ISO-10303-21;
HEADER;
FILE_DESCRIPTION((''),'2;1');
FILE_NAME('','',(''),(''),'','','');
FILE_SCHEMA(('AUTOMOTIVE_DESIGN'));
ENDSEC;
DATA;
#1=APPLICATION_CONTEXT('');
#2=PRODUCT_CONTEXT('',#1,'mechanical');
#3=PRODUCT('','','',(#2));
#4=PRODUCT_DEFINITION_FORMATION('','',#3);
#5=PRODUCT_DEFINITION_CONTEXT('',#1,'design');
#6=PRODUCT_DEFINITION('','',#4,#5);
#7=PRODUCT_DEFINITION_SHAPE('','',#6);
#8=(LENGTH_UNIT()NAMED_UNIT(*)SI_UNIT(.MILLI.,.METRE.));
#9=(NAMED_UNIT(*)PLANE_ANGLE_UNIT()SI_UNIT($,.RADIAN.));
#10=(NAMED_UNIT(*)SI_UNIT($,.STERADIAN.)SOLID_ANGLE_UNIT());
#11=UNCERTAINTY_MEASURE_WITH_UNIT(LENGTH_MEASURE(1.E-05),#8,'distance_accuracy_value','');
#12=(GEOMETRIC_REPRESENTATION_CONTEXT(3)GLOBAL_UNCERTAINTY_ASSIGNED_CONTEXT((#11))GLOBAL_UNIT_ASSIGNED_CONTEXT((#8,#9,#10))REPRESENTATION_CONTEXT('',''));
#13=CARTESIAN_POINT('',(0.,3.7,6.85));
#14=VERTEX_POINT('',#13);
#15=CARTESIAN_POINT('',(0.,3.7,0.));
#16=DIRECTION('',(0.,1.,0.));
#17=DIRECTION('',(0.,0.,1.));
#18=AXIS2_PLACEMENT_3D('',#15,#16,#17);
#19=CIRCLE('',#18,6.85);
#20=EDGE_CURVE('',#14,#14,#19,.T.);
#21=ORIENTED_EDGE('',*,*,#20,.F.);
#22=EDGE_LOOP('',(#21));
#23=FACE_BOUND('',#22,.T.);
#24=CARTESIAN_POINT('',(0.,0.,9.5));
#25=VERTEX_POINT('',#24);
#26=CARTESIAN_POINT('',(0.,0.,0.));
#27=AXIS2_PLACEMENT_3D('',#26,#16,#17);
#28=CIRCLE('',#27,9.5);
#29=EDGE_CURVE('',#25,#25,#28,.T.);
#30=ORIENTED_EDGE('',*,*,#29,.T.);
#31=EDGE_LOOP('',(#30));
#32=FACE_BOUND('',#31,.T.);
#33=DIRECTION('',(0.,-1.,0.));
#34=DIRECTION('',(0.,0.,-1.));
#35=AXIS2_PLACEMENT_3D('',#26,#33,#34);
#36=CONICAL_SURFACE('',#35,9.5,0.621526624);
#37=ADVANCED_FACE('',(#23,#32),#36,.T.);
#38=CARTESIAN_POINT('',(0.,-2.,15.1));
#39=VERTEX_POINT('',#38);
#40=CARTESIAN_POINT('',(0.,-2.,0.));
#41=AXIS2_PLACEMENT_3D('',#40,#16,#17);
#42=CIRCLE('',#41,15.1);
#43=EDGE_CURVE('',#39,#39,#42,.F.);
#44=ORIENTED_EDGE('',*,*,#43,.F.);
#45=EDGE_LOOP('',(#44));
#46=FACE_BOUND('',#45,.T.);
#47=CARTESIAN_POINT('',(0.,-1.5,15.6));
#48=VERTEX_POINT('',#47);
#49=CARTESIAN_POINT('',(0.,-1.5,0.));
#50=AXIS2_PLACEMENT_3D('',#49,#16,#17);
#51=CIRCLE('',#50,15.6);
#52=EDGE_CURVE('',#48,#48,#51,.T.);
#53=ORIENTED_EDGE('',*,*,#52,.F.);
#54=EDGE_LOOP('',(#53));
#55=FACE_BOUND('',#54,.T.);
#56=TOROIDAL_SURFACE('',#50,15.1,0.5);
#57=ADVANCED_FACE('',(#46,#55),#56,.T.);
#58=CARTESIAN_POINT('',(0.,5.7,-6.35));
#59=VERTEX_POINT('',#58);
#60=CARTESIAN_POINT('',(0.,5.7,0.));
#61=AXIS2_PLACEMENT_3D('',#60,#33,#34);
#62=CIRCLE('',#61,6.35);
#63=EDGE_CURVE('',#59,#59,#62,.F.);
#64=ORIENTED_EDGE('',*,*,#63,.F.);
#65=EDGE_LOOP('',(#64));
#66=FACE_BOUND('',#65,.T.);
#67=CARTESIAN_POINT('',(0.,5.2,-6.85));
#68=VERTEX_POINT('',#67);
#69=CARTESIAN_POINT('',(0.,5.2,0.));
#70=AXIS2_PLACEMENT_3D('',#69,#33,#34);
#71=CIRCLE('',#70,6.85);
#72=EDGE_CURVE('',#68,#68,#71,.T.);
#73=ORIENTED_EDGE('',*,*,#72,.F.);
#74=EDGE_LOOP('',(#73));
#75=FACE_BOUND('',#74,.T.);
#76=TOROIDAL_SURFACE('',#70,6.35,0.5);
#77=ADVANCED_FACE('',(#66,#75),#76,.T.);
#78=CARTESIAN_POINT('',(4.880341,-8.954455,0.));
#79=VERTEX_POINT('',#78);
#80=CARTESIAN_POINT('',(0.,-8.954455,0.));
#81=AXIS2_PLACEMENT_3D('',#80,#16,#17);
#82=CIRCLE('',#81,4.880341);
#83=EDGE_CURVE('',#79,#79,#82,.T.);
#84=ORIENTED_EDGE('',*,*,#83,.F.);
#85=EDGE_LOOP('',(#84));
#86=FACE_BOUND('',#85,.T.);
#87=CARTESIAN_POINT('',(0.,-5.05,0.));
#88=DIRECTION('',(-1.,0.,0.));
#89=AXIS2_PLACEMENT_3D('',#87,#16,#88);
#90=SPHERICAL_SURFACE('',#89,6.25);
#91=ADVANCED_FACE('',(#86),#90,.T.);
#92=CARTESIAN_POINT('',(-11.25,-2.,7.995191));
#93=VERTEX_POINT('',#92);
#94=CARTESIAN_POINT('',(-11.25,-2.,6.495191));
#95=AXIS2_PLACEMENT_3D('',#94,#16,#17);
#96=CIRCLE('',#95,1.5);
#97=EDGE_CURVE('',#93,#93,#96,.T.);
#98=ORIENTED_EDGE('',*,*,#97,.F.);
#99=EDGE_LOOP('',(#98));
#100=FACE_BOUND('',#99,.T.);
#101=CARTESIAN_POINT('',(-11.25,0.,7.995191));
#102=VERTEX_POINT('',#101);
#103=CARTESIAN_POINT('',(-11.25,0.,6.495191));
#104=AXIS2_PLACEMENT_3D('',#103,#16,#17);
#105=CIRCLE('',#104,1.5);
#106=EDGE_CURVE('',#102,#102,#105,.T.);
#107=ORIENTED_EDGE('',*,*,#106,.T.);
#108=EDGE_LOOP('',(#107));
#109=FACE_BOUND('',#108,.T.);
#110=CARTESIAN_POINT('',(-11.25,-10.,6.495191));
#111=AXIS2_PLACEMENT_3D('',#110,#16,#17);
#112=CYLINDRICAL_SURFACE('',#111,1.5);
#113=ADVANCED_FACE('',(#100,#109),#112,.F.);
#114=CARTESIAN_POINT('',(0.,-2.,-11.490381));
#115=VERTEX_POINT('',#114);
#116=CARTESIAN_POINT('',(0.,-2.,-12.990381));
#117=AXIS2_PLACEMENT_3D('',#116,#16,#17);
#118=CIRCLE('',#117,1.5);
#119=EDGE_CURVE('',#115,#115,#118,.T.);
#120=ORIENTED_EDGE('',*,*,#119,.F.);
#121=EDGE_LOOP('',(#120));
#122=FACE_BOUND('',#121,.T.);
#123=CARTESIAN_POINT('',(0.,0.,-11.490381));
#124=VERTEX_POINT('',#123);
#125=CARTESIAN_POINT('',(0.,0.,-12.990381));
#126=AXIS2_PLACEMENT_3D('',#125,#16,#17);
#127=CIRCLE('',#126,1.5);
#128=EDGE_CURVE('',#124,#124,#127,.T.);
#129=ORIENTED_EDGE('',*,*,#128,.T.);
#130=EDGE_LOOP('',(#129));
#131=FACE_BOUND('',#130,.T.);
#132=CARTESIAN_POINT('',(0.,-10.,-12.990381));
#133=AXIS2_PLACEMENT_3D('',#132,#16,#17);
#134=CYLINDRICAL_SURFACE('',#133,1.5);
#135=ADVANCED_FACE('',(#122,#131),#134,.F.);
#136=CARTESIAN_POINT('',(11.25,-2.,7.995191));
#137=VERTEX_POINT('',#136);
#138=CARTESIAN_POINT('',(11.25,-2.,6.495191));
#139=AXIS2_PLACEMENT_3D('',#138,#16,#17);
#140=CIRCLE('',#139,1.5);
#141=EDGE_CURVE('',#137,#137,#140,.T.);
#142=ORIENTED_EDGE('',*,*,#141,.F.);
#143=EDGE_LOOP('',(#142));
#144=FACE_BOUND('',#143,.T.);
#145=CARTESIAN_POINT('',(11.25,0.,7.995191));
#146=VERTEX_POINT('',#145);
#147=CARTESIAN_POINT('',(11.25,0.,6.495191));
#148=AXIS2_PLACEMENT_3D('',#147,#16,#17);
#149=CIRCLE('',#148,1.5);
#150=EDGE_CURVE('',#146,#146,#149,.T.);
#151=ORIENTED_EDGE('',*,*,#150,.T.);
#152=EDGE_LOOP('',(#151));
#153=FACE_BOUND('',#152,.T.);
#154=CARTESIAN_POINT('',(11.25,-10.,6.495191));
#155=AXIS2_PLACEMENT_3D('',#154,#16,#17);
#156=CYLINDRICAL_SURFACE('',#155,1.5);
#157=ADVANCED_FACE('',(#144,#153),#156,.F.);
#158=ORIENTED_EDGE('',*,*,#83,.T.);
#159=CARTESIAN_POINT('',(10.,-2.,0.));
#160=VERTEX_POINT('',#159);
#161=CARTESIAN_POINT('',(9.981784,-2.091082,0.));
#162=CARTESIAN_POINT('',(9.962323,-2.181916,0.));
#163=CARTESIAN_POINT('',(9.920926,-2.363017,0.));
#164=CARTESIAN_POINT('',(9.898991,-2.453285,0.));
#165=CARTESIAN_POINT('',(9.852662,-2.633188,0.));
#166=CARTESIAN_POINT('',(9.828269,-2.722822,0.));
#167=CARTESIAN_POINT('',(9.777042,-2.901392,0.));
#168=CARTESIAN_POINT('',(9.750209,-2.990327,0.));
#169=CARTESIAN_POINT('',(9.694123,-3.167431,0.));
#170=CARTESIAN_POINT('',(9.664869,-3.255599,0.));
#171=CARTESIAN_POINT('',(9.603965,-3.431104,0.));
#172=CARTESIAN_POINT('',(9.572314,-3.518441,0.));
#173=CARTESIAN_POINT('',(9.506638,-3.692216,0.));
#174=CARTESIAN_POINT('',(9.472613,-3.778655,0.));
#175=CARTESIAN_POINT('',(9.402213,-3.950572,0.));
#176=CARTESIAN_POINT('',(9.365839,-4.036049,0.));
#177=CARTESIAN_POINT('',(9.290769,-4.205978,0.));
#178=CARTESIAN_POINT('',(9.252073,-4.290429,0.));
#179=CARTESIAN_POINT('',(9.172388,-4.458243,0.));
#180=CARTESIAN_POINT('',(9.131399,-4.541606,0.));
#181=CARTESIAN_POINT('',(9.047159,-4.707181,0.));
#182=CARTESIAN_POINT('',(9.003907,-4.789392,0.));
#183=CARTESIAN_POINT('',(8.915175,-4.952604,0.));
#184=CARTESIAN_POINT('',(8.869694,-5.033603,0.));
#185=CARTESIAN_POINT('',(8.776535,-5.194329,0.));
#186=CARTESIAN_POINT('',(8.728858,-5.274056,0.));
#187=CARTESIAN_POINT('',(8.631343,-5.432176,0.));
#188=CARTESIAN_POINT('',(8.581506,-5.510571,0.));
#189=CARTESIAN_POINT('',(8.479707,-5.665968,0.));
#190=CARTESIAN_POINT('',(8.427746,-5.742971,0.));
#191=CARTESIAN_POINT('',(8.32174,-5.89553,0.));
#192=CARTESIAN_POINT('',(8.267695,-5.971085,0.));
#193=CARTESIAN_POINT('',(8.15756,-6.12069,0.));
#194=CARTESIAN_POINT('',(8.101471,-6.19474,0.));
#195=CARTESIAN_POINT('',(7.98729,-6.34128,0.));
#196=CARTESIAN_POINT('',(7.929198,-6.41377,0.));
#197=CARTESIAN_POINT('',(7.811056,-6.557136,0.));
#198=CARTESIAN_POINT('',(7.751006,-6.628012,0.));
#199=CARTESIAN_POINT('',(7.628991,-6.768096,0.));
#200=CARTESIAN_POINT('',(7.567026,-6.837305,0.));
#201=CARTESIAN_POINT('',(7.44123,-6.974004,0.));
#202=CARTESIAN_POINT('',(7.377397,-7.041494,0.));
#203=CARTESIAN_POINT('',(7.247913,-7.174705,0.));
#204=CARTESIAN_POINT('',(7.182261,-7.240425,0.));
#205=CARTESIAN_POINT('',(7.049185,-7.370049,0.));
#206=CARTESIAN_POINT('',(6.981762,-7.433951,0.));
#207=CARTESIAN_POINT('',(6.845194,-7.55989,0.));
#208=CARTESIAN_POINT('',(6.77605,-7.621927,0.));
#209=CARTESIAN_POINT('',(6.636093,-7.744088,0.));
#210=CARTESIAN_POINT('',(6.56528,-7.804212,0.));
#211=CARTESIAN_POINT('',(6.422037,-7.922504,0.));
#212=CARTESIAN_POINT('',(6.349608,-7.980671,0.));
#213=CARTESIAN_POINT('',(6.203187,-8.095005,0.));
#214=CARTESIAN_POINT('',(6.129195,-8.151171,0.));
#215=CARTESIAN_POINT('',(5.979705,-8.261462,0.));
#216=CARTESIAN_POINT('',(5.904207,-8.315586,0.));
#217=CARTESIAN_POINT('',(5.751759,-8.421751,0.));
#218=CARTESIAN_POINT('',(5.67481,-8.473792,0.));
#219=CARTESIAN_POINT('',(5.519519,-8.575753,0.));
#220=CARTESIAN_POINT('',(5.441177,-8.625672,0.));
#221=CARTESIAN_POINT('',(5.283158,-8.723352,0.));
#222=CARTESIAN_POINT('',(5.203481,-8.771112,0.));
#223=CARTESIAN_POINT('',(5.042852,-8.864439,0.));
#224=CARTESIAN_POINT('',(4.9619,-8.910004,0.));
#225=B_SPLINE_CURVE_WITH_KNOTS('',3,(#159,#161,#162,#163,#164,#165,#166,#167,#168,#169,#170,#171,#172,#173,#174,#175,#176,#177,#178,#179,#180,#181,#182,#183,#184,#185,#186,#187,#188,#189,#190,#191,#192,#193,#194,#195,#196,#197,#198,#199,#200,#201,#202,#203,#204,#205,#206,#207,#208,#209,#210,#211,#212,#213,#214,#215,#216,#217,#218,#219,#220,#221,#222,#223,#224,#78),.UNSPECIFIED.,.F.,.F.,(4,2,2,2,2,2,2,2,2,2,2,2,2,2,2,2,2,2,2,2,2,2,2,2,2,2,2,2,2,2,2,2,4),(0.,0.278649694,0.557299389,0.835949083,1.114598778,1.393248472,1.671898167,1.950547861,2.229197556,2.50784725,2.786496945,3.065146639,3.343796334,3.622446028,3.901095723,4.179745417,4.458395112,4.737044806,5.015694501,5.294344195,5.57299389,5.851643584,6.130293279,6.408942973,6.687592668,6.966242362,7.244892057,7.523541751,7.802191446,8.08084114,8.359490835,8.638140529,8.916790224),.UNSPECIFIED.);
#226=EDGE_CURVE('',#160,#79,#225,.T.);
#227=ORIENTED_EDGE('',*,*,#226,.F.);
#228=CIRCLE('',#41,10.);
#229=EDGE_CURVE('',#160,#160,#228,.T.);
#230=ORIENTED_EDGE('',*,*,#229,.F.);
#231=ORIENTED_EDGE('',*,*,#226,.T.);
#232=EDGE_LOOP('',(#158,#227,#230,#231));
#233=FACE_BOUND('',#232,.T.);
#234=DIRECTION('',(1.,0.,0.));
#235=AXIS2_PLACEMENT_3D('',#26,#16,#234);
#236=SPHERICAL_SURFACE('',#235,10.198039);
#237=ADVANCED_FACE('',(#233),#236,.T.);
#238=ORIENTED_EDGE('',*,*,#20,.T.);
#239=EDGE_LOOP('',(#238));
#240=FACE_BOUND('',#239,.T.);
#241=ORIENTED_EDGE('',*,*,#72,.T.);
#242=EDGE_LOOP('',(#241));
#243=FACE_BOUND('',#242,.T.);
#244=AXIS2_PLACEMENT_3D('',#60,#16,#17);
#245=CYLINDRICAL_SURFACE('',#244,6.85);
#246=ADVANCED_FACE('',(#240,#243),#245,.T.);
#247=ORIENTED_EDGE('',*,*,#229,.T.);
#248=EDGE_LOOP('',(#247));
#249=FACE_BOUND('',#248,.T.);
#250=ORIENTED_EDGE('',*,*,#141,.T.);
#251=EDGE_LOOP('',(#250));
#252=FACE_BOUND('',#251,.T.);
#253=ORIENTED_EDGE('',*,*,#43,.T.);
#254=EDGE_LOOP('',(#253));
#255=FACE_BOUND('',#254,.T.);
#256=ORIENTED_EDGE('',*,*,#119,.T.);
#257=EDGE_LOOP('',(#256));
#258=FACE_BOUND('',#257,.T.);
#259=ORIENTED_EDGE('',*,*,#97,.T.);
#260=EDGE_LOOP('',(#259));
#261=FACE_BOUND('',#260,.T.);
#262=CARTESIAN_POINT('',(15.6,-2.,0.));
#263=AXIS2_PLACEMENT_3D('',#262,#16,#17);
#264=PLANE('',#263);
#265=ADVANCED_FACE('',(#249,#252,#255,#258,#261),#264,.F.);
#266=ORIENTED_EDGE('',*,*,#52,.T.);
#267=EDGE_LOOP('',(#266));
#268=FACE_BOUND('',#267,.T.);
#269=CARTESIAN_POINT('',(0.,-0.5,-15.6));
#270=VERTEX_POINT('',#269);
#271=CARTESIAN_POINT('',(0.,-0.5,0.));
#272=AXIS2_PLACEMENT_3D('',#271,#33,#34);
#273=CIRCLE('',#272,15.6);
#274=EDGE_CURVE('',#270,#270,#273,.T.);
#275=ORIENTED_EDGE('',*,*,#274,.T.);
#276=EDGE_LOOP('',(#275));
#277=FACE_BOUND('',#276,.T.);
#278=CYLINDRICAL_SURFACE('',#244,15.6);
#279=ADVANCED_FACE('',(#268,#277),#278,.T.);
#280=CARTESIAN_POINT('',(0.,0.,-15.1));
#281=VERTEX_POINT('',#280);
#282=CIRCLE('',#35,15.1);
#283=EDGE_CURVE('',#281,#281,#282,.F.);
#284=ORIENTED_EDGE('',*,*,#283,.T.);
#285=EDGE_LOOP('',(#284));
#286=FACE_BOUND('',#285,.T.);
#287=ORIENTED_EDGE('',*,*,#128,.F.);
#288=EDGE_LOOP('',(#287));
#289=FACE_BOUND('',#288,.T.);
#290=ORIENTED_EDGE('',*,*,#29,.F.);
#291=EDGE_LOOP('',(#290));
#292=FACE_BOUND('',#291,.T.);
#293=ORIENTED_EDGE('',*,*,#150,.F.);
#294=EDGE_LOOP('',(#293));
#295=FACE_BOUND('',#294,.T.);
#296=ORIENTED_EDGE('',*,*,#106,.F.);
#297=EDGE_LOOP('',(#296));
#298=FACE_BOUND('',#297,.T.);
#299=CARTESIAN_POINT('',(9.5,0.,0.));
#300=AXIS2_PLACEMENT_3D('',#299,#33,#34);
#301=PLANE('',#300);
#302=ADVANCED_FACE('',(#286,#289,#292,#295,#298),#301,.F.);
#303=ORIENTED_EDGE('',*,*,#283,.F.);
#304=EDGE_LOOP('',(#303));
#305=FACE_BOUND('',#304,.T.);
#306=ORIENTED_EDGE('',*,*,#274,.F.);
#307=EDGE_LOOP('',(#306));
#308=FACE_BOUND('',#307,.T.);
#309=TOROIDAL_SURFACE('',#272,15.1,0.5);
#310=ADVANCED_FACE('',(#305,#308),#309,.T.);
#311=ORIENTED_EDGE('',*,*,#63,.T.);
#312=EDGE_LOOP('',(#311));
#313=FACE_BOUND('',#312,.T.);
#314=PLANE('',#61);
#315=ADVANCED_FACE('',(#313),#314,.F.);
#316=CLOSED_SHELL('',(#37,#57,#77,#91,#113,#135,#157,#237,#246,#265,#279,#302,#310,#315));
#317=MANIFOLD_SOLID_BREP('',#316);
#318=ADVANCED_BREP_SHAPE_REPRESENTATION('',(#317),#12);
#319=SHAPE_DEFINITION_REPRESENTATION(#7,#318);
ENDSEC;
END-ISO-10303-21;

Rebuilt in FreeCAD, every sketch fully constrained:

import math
import FreeCAD as App
import Part
import Sketcher
from FreeCAD import Vector


def edges_at(feature, points):
    """Names of the edges that pass closest to the given points."""
    edges = feature.Shape.Edges
    near = lambda p: min(range(len(edges)), key=lambda i: edges[i].distToShape(Part.Vertex(*p))[0])
    return sorted({f"Edge{near(p) + 1}" for p in points})

doc = App.newDocument("Part")
body = doc.addObject("PartDesign::Body", "Body")

# Sketch on XY plane
sketch1 = body.newObject("Sketcher::SketchObject", "Sketch")
sketch1.AttachmentSupport = (doc.getObject("XY_Plane"), [""])
sketch1.MapMode = "FlatFace"
sketch1.addGeometry(Part.LineSegment(Vector(6.8, 5.7, 0), Vector(0, 5.7, 0)), False)
sketch1.addGeometry(Part.LineSegment(Vector(0, 5.7, 0), Vector(0, -11.3, 0)), False)
sketch1.addGeometry(Part.ArcOfCircle(Part.Circle(Vector(0, -5, 0), Vector(0, 0, 1), 6.3), math.radians(-90), math.radians(-39)), False)
sketch1.addGeometry(Part.ArcOfCircle(Part.Circle(Vector(0, 0, 0), Vector(0, 0, 1), 10.2), math.radians(-61), math.radians(-11)), False)
sketch1.addGeometry(Part.LineSegment(Vector(10, -2, 0), Vector(15.6, -2, 0)), False)
sketch1.addGeometry(Part.LineSegment(Vector(15.6, -2, 0), Vector(15.6, 0, 0)), False)
sketch1.addGeometry(Part.LineSegment(Vector(15.6, 0, 0), Vector(9.5, 0, 0)), False)
sketch1.addGeometry(Part.LineSegment(Vector(9.5, 0, 0), Vector(6.8, 3.7, 0)), False)
sketch1.addGeometry(Part.LineSegment(Vector(6.8, 3.7, 0), Vector(6.8, 5.7, 0)), False)
sketch1.addConstraint(Sketcher.Constraint("Coincident", 0, 2, 1, 1))
sketch1.addConstraint(Sketcher.Constraint("Coincident", 1, 2, 2, 1))
sketch1.addConstraint(Sketcher.Constraint("Coincident", 2, 2, 3, 1))
sketch1.addConstraint(Sketcher.Constraint("Coincident", 3, 2, 4, 1))
sketch1.addConstraint(Sketcher.Constraint("Coincident", 4, 2, 5, 1))
sketch1.addConstraint(Sketcher.Constraint("Coincident", 5, 2, 6, 1))
sketch1.addConstraint(Sketcher.Constraint("Coincident", 6, 2, 7, 1))
sketch1.addConstraint(Sketcher.Constraint("Coincident", 7, 2, 8, 1))
sketch1.addConstraint(Sketcher.Constraint("Coincident", 8, 2, 0, 1))
sketch1.addConstraint(Sketcher.Constraint("Horizontal", 0))
sketch1.addConstraint(Sketcher.Constraint("Vertical", 1))
sketch1.addConstraint(Sketcher.Constraint("Horizontal", 4))
sketch1.addConstraint(Sketcher.Constraint("Vertical", 5))
sketch1.addConstraint(Sketcher.Constraint("Horizontal", 6))
sketch1.addConstraint(Sketcher.Constraint("Vertical", 8))
sketch1.addConstraint(Sketcher.Constraint("Coincident", 3, 3, -1, 1))
sketch1.addConstraint(Sketcher.Constraint("PointOnObject", 2, 3, -2))
sketch1.addConstraint(Sketcher.Constraint("PointOnObject", 0, 2, -2))
sketch1.addConstraint(Sketcher.Constraint("PointOnObject", 5, 2, -1))
sketch1.addConstraint(Sketcher.Constraint("Equal", 5, 8))
sketch1.addConstraint(Sketcher.Constraint("DistanceY", 1, 2, 1, 1, 17.0))
sketch1.addConstraint(Sketcher.Constraint("DistanceY", 5, 1, 5, 2, 2.0))
sketch1.addConstraint(Sketcher.Constraint("Radius", 2, 6.25))
sketch1.addConstraint(Sketcher.Constraint("DistanceX", 4, 1, 4, 2, 5.6))
sketch1.addConstraint(Sketcher.Constraint("DistanceX", 6, 2, 6, 1, 6.1))
sketch1.addConstraint(Sketcher.Constraint("DistanceX", -1, 1, 3, 2, 10.0))
sketch1.addConstraint(Sketcher.Constraint("DistanceX", 0, 2, 0, 1, 6.85))
sketch1.addConstraint(Sketcher.Constraint("DistanceY", -1, 1, 0, 2, 5.7))
revolution = body.newObject("PartDesign::Revolution", "Revolution")
revolution.Profile = sketch1
revolution.ReferenceAxis = (sketch1, ["V_Axis"])
revolution.Angle = 360
doc.recompute()

fillet = body.newObject("PartDesign::Fillet", "Fillet")
fillet.Base = (revolution, edges_at(revolution, [(0, 5.7, -6.85), (0, 0, -15.6), (0, -2, -15.6)]))
fillet.Radius = 0.5

# Sketch on XZ plane
sketch2 = body.newObject("Sketcher::SketchObject", "Sketch001")
sketch2.AttachmentSupport = (doc.getObject("XZ_Plane"), [""])
sketch2.MapMode = "FlatFace"
sketch2.addGeometry(Part.Circle(Vector(0, -13, 0), Vector(0, 0, 1), 1.5), False)
sketch2.addGeometry(Part.Circle(Vector(11.2, 6.5, 0), Vector(0, 0, 1), 1.5), False)
sketch2.addGeometry(Part.Circle(Vector(-11.2, 6.5, 0), Vector(0, 0, 1), 1.5), False)
sketch2.addConstraint(Sketcher.Constraint("Equal", 0, 1))
sketch2.addConstraint(Sketcher.Constraint("Equal", 1, 2))
sketch2.addConstraint(Sketcher.Constraint("Symmetric", 1, 3, 2, 3, -2))
sketch2.addConstraint(Sketcher.Constraint("PointOnObject", 0, 3, -2))
sketch2.addConstraint(Sketcher.Constraint("Diameter", 0, 3.0))
sketch2.addConstraint(Sketcher.Constraint("DistanceX", 2, 3, 1, 3, 22.5))
sketch2.addConstraint(Sketcher.Constraint("DistanceY", 0, 3, -1, 1, 12.990381))
sketch2.addConstraint(Sketcher.Constraint("DistanceY", -1, 1, 1, 3, 6.495191))
pocket1 = body.newObject("PartDesign::Pocket", "Pocket")
pocket1.Profile = sketch2
pocket1.Length = 10
pocket1.Reversed = True

doc.recompute()
